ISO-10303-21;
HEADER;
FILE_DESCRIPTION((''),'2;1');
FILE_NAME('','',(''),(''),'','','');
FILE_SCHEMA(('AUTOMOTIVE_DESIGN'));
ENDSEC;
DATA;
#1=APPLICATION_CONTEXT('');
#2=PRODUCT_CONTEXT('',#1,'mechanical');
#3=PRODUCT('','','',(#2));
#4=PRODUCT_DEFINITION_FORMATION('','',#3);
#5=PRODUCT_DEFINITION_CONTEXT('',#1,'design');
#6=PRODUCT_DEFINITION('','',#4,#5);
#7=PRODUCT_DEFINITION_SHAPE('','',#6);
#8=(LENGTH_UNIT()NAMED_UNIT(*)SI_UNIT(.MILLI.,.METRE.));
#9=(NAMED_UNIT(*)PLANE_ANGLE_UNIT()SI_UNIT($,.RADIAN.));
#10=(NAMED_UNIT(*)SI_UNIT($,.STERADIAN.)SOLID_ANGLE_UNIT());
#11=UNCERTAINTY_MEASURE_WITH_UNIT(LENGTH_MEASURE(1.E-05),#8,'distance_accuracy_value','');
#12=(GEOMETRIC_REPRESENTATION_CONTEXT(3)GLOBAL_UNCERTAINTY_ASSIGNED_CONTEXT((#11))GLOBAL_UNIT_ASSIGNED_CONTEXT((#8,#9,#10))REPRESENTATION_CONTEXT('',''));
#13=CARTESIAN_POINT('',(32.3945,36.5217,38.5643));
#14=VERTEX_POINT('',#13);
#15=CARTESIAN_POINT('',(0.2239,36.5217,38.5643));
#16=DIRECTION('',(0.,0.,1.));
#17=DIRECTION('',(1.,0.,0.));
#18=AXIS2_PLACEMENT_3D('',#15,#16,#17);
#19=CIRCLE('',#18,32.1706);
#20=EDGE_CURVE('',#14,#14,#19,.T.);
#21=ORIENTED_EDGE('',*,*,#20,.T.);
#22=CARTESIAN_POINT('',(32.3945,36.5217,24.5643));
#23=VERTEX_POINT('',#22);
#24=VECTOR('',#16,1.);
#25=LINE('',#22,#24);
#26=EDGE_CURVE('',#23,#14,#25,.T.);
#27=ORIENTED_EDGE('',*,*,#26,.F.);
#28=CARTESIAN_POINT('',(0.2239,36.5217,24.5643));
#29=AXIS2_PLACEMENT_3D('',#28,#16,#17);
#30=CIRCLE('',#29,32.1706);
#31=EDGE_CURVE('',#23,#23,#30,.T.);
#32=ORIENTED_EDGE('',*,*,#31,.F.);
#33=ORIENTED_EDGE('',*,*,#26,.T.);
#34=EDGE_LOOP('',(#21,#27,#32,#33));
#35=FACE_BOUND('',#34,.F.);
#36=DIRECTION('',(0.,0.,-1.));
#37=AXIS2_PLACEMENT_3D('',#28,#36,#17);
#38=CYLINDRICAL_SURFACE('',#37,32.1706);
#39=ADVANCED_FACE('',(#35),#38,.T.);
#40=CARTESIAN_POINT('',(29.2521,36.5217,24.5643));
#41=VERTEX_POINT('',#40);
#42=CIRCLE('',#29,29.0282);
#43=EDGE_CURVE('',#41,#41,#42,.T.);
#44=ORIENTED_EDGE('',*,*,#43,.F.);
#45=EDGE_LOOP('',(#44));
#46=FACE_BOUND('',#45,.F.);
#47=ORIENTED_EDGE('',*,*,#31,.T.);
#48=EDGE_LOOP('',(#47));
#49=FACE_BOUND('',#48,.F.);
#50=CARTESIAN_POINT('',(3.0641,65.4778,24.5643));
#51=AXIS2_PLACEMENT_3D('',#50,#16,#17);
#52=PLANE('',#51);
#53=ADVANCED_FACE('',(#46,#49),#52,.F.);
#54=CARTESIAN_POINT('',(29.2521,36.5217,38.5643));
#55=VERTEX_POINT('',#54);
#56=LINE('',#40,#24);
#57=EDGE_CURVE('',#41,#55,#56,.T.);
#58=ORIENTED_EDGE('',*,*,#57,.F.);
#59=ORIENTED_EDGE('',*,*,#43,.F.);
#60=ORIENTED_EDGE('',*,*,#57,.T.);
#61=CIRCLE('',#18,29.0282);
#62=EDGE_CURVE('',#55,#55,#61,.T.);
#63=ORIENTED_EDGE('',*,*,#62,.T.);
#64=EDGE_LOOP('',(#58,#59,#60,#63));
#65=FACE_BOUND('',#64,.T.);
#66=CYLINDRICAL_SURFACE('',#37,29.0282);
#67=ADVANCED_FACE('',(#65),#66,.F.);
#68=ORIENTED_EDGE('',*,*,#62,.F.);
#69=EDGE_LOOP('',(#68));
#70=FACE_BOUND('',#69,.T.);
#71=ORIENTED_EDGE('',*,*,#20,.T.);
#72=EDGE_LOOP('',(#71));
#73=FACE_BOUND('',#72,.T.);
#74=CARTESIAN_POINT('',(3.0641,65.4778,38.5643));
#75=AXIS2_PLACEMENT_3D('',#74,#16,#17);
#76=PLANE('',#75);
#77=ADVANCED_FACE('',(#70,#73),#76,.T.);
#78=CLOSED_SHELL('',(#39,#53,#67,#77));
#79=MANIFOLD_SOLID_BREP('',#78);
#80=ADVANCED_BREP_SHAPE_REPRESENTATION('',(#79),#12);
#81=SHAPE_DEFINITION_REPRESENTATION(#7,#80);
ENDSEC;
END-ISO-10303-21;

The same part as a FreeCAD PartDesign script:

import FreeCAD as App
import Part
import Sketcher
from FreeCAD import Vector

doc = App.newDocument("Part")
body = doc.addObject("PartDesign::Body", "Body")

# Sketch on XY plane
sketch1 = body.newObject("Sketcher::SketchObject", "Sketch")
sketch1.AttachmentSupport = (doc.getObject("XY_Plane"), [""])
sketch1.MapMode = "FlatFace"
sketch1.AttachmentOffset = App.Placement(Vector(0, 0, 24.5643), App.Rotation())
sketch1.addGeometry([
    Part.Circle(Vector(0, 37, 0), Vector(0, 0, 1), 32),
    Part.Circle(Vector(0, 37, 0), Vector(0, 0, 1), 29),
], False)
sketch1.addConstraint([
    Sketcher.Constraint("Coincident", 1, 3, 0, 3),
    Sketcher.Constraint("Diameter", 0, 64.3412),
    Sketcher.Constraint("Diameter", 1, 58.0564),
    Sketcher.Constraint("DistanceX", -1, 1, 0, 3, 0.224),
    Sketcher.Constraint("DistanceY", -1, 1, 0, 3, 36.5217),
])
pad1 = body.newObject("PartDesign::Pad", "Pad")
pad1.Profile = sketch1
pad1.Length = 14

doc.recompute()
